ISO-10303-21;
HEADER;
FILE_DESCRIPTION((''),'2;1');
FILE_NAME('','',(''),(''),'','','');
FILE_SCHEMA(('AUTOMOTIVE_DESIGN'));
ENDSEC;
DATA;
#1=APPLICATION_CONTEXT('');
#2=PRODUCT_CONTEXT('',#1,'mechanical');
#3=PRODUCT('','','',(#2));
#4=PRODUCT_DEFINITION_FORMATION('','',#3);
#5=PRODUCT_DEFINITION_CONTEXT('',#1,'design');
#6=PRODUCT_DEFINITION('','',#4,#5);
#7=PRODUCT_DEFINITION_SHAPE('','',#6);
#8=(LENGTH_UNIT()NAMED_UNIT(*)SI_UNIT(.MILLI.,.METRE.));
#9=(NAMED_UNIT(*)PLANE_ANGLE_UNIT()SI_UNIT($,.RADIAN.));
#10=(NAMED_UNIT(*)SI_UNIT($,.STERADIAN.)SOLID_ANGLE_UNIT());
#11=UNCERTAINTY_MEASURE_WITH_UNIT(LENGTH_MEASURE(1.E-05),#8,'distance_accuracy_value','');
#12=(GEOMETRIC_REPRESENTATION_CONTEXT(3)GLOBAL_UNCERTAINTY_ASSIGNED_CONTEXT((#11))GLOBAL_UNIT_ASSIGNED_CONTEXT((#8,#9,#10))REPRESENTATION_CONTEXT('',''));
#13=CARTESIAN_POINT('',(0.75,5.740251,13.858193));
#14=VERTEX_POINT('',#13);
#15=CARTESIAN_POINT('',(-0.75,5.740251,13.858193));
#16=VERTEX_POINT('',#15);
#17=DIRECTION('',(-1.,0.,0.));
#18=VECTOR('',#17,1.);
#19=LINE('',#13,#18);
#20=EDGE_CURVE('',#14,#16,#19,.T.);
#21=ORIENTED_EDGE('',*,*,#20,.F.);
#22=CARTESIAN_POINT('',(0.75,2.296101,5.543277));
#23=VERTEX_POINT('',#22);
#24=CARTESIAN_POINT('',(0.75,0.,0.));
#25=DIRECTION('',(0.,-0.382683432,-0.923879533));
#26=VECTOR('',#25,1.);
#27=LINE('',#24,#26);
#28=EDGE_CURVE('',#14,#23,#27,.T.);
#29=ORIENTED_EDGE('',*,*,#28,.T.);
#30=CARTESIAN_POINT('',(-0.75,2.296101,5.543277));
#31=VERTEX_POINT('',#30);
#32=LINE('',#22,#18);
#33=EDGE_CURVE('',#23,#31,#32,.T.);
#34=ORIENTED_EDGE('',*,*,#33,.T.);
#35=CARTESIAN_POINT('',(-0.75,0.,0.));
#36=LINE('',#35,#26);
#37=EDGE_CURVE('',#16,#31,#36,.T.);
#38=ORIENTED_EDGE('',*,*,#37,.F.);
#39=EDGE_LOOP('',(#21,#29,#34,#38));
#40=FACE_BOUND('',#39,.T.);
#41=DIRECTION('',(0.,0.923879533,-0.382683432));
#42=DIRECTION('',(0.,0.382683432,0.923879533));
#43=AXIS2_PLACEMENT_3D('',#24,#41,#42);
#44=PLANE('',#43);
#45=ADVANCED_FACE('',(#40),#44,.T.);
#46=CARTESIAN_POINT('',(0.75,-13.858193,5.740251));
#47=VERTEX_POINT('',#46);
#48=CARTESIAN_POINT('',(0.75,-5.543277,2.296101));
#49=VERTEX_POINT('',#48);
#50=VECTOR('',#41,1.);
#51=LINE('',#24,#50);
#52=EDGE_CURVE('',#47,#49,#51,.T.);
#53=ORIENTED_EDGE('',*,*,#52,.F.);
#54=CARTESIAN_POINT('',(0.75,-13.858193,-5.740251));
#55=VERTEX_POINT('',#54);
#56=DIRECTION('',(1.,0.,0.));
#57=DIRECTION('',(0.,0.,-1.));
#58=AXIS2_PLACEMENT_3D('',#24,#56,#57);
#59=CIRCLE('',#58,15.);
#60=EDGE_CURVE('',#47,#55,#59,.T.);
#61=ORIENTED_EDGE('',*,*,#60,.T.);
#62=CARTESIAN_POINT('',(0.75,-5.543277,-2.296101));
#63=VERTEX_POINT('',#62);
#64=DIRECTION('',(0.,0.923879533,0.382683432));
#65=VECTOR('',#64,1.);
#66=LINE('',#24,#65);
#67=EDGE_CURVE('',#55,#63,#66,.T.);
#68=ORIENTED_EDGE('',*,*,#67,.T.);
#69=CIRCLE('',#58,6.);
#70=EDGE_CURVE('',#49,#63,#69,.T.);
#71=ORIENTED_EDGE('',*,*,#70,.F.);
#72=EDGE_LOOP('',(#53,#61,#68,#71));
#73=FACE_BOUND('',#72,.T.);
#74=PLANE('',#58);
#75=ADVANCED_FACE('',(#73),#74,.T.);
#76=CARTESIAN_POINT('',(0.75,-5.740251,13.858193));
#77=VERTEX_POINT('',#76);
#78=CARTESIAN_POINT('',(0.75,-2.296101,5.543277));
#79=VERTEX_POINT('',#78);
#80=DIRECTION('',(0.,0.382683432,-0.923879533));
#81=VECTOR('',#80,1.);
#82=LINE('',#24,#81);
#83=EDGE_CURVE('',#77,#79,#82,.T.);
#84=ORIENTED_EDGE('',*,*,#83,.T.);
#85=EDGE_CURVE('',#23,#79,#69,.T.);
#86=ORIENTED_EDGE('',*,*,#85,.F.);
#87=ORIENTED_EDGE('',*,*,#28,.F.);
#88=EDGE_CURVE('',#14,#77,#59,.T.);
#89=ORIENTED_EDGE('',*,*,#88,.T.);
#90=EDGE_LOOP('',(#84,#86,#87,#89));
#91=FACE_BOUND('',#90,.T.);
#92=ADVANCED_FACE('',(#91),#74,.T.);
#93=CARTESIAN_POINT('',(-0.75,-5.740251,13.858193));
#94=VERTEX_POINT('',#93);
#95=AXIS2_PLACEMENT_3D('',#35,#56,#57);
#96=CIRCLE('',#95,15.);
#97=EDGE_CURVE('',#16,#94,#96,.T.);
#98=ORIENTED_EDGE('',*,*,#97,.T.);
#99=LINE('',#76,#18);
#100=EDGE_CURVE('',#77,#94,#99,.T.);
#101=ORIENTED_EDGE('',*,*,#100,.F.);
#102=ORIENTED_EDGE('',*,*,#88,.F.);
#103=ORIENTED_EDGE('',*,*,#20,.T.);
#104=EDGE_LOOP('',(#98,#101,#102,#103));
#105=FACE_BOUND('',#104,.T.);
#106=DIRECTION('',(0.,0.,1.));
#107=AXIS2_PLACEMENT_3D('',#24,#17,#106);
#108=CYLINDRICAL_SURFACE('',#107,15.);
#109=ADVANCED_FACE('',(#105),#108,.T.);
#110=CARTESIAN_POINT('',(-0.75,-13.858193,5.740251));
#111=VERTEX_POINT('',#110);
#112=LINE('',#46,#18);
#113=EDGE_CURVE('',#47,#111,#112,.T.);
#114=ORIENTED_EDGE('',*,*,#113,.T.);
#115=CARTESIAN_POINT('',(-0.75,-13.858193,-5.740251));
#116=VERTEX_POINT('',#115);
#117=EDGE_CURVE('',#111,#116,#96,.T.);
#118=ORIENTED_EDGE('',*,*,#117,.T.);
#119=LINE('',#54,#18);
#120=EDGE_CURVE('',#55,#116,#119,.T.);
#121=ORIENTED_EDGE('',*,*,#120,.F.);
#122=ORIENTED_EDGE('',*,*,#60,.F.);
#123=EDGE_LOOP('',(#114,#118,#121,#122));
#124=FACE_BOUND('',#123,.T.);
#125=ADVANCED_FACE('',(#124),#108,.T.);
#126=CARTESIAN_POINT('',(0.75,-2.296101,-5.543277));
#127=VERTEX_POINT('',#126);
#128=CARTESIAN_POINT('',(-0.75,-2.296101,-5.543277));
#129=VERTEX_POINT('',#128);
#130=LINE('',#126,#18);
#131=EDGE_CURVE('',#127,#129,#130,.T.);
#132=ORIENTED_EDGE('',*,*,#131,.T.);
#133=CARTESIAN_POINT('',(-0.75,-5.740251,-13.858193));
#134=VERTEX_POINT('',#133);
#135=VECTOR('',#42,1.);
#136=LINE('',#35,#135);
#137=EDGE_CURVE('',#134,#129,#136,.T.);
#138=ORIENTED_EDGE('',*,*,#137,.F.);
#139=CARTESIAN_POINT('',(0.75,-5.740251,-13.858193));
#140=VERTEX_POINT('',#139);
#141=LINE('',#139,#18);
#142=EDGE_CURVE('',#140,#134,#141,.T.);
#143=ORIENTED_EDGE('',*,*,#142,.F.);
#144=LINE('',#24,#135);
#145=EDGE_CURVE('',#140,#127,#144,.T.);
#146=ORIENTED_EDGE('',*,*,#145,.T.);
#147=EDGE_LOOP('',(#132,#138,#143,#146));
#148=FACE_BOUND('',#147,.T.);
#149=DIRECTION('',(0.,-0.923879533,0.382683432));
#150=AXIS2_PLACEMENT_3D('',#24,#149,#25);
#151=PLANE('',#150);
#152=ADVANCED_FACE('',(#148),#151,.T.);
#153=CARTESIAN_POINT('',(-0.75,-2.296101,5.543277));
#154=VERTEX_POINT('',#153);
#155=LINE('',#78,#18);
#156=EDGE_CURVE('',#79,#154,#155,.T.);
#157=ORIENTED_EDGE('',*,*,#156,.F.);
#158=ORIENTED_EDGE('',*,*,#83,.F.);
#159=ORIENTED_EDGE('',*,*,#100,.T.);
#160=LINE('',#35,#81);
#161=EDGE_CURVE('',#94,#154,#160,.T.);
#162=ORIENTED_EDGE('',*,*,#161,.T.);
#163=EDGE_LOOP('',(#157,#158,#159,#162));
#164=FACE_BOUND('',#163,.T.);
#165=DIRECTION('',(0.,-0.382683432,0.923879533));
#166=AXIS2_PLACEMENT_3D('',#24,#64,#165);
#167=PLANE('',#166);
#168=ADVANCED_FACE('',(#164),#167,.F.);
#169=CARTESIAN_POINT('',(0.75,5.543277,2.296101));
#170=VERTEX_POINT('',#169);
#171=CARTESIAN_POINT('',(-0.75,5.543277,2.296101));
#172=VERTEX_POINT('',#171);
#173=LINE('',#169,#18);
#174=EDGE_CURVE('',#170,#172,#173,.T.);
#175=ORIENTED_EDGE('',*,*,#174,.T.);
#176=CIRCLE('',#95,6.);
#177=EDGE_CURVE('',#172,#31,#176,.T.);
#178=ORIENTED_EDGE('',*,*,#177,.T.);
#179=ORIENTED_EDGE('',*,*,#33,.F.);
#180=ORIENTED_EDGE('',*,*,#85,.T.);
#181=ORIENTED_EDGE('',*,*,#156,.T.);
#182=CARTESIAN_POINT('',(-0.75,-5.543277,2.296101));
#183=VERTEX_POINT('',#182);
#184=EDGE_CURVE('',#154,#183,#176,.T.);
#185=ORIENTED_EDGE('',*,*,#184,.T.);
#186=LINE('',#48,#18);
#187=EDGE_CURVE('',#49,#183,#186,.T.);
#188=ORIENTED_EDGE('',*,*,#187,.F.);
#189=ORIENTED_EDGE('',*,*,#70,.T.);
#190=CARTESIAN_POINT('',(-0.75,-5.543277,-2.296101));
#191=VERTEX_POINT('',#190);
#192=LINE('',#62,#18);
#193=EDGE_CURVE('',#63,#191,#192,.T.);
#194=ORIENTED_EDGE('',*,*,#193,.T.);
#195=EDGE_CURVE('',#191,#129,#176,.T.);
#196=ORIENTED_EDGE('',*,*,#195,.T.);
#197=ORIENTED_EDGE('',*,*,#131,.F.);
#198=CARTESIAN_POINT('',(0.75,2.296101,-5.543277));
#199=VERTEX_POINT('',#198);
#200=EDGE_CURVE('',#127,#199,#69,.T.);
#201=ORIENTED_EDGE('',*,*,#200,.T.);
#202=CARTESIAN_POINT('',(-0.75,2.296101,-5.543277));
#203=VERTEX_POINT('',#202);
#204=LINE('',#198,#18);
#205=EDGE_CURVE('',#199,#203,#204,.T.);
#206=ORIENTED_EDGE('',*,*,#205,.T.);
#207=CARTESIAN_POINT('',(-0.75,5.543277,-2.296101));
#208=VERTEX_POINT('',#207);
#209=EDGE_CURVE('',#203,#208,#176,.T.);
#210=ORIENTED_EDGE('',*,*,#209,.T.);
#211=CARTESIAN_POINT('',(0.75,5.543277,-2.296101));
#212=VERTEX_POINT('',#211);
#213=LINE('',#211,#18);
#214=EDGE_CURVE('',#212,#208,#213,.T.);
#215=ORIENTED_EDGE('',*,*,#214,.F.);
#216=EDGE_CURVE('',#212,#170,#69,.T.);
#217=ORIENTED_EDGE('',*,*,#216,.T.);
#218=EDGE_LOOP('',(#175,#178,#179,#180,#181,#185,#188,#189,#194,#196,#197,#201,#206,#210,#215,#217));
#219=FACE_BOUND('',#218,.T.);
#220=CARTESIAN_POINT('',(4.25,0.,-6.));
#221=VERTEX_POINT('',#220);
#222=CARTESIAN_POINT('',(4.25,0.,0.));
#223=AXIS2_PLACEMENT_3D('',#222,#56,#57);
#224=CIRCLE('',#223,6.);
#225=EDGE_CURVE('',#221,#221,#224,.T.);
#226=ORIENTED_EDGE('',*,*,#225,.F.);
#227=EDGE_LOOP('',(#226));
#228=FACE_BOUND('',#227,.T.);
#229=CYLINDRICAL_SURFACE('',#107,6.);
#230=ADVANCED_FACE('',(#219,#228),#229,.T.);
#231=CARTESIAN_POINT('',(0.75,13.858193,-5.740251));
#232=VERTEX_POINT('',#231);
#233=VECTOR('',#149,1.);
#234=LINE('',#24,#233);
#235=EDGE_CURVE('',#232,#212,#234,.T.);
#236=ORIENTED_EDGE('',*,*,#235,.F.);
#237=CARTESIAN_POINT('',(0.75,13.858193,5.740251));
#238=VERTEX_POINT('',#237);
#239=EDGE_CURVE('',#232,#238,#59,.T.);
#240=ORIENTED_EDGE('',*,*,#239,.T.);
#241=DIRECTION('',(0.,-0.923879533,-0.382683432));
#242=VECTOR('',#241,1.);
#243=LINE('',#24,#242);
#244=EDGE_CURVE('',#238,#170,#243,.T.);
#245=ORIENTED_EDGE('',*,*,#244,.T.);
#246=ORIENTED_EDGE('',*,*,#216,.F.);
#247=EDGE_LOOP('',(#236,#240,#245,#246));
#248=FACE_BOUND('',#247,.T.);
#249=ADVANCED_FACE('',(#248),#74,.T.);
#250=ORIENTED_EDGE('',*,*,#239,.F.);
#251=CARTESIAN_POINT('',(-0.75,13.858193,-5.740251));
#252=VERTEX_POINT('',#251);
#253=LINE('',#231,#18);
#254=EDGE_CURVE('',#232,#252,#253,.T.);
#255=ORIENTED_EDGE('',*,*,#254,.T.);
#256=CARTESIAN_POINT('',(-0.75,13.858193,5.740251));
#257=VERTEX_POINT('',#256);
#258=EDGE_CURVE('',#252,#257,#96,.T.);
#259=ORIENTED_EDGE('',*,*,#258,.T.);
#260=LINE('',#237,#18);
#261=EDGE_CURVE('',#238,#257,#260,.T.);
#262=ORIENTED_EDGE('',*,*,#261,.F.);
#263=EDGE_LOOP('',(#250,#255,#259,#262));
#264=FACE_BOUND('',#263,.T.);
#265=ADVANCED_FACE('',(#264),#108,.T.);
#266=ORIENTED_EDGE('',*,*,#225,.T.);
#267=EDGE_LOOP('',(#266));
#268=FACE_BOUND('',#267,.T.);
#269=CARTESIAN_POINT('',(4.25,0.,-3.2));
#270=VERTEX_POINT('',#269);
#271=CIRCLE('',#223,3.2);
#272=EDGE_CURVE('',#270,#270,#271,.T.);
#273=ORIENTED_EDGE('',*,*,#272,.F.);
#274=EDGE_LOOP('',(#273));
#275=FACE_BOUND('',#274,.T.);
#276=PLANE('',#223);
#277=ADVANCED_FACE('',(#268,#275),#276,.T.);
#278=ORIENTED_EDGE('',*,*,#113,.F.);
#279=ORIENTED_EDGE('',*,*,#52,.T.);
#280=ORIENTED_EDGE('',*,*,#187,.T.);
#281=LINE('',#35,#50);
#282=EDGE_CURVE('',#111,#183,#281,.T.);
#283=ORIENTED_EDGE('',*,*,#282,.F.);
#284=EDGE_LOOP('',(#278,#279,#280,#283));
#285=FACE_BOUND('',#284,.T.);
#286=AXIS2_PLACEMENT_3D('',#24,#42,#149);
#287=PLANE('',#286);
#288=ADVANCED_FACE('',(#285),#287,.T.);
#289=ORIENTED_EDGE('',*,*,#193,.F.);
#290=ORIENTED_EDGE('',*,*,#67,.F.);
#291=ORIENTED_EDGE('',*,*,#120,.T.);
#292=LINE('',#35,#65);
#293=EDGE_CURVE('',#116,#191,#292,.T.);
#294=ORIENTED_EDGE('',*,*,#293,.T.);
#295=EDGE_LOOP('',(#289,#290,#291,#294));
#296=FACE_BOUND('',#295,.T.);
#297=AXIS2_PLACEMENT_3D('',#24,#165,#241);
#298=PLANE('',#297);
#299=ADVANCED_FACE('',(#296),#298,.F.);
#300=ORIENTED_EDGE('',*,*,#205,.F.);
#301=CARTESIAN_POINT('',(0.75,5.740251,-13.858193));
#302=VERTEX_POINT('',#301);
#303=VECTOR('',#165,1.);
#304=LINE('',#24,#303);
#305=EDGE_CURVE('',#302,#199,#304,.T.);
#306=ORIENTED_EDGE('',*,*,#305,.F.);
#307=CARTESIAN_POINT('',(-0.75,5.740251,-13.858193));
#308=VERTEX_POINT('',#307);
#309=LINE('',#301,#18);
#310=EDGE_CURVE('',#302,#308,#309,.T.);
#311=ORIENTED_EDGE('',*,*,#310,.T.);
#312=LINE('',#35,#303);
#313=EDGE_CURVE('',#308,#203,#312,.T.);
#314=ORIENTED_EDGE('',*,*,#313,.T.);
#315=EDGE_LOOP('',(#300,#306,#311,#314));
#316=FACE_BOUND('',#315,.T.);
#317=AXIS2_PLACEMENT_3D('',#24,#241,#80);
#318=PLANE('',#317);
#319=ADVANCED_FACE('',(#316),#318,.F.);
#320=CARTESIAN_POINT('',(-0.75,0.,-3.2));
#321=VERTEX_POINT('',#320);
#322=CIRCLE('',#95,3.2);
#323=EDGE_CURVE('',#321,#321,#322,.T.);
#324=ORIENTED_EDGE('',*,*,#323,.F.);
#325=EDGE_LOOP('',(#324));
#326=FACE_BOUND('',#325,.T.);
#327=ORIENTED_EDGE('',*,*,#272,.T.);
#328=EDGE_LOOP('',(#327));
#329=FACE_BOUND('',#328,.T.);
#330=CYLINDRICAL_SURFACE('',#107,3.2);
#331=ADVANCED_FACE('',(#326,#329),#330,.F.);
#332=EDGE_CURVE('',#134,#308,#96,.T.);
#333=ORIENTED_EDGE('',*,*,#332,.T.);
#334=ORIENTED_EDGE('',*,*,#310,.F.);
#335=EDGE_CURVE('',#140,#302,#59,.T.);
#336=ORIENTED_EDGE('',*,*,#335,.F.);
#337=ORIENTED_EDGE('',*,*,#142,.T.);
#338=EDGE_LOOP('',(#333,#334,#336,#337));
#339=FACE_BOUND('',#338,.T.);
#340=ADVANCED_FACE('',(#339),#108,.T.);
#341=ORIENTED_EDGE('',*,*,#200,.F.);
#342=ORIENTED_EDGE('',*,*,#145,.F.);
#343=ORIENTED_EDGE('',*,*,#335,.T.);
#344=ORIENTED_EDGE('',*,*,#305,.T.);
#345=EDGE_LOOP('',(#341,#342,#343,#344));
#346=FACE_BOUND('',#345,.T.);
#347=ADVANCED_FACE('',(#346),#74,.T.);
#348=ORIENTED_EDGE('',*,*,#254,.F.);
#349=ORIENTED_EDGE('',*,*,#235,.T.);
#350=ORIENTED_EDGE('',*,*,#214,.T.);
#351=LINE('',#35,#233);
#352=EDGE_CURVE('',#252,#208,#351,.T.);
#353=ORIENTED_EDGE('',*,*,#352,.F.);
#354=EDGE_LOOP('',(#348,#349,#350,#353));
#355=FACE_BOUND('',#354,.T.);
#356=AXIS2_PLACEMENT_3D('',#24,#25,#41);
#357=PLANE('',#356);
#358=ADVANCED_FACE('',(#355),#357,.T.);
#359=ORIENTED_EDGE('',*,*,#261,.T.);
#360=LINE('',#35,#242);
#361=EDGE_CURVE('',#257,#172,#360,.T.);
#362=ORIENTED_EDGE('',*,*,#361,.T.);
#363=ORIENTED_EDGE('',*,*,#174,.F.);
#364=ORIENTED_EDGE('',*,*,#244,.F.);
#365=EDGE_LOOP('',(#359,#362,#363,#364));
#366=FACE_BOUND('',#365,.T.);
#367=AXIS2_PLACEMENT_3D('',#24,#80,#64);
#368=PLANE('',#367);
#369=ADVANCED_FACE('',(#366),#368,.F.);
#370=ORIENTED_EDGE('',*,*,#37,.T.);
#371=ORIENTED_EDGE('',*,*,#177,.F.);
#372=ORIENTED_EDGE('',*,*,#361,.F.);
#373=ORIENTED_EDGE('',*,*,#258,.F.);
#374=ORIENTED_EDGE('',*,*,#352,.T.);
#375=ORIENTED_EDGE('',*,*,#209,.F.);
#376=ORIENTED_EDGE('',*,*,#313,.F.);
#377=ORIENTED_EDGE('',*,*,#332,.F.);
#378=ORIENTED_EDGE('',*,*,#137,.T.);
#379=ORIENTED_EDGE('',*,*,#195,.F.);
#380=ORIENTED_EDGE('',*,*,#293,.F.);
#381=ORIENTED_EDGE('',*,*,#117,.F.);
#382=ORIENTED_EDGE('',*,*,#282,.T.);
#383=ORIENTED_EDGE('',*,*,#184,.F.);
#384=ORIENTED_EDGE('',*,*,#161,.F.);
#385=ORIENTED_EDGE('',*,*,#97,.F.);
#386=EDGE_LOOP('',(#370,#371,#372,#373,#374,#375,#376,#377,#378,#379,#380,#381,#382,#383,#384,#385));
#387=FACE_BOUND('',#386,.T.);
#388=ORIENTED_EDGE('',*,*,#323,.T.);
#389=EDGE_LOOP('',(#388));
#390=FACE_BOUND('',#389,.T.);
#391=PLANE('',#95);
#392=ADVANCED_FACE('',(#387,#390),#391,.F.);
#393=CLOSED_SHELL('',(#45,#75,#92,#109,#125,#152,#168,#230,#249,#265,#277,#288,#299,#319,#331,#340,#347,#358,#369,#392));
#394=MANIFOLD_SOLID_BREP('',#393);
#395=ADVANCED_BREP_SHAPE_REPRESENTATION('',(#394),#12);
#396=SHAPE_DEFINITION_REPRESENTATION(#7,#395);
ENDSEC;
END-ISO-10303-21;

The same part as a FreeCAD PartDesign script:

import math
import FreeCAD as App
import Part
import Sketcher
Q = App.Units.Quantity

doc = App.newDocument("Part")
body = doc.addObject("PartDesign::Body", "Body")

sketch1 = doc.addObject("Sketcher::SketchObject", "Sketch")
body.addObject(sketch1)
sketch1.AttachmentSupport = (doc.YZ_Plane, [""])
sketch1.MapMode = "FlatFace"
sketch1.addGeometry(Part.LineSegment(App.Vector(13.858193, 5.740251, 0), App.Vector(5.543277, 2.296101, 0)), False)
sketch1.addGeometry(Part.ArcOfCircle(Part.Circle(App.Vector(0, 0, 0), App.Vector(0, 0, 1), 6), math.radians(22.5), math.radians(67.5)), False)
sketch1.addGeometry(Part.LineSegment(App.Vector(2.296101, 5.543277, 0), App.Vector(5.740251, 13.858193, 0)), False)
sketch1.addGeometry(Part.ArcOfCircle(Part.Circle(App.Vector(0, 0, 0), App.Vector(0, 0, 1), 15), math.radians(67.5), math.radians(112.5)), False)
sketch1.addGeometry(Part.LineSegment(App.Vector(-5.740251, 13.858193, 0), App.Vector(-2.296101, 5.543277, 0)), False)
sketch1.addGeometry(Part.ArcOfCircle(Part.Circle(App.Vector(0, 0, 0), App.Vector(0, 0, 1), 6), math.radians(112.5), math.radians(157.5)), False)
sketch1.addGeometry(Part.LineSegment(App.Vector(-5.543277, 2.296101, 0), App.Vector(-13.858193, 5.740251, 0)), False)
sketch1.addGeometry(Part.ArcOfCircle(Part.Circle(App.Vector(0, 0, 0), App.Vector(0, 0, 1), 15), math.radians(157.5), math.radians(202.5)), False)
sketch1.addGeometry(Part.LineSegment(App.Vector(-13.858193, -5.740251, 0), App.Vector(-5.543277, -2.296101, 0)), False)
sketch1.addGeometry(Part.ArcOfCircle(Part.Circle(App.Vector(0, 0, 0), App.Vector(0, 0, 1), 6), math.radians(-157.5), math.radians(-112.5)), False)
sketch1.addGeometry(Part.LineSegment(App.Vector(-2.296101, -5.543277, 0), App.Vector(-5.740251, -13.858193, 0)), False)
sketch1.addGeometry(Part.ArcOfCircle(Part.Circle(App.Vector(0, 0, 0), App.Vector(0, 0, 1), 15), math.radians(-112.5), math.radians(-67.5)), False)
sketch1.addGeometry(Part.LineSegment(App.Vector(5.740251, -13.858193, 0), App.Vector(2.296101, -5.543277, 0)), False)
sketch1.addGeometry(Part.ArcOfCircle(Part.Circle(App.Vector(0, 0, 0), App.Vector(0, 0, 1), 6), math.radians(-67.5), math.radians(-22.5)), False)
sketch1.addGeometry(Part.LineSegment(App.Vector(5.543277, -2.296101, 0), App.Vector(13.858193, -5.740251, 0)), False)
sketch1.addGeometry(Part.ArcOfCircle(Part.Circle(App.Vector(0, 0, 0), App.Vector(0, 0, 1), 15), math.radians(-22.5), math.radians(22.5)), False)
sketch1.addGeometry(Part.Circle(App.Vector(0, 0, 0), App.Vector(0, 0, 1), 3.2), False)
sketch1.addConstraint(Sketcher.Constraint("Coincident", 0, 2, 1, 1))
sketch1.addConstraint(Sketcher.Constraint("Coincident", 1, 2, 2, 1))
sketch1.addConstraint(Sketcher.Constraint("Coincident", 2, 2, 3, 1))
sketch1.addConstraint(Sketcher.Constraint("Coincident", 3, 2, 4, 1))
sketch1.addConstraint(Sketcher.Constraint("Coincident", 4, 2, 5, 1))
sketch1.addConstraint(Sketcher.Constraint("Coincident", 5, 2, 6, 1))
sketch1.addConstraint(Sketcher.Constraint("Coincident", 6, 2, 7, 1))
sketch1.addConstraint(Sketcher.Constraint("Coincident", 7, 2, 8, 1))
sketch1.addConstraint(Sketcher.Constraint("Coincident", 8, 2, 9, 1))
sketch1.addConstraint(Sketcher.Constraint("Coincident", 9, 2, 10, 1))
sketch1.addConstraint(Sketcher.Constraint("Coincident", 10, 2, 11, 1))
sketch1.addConstraint(Sketcher.Constraint("Coincident", 11, 2, 12, 1))
sketch1.addConstraint(Sketcher.Constraint("Coincident", 12, 2, 13, 1))
sketch1.addConstraint(Sketcher.Constraint("Coincident", 13, 2, 14, 1))
sketch1.addConstraint(Sketcher.Constraint("Coincident", 14, 2, 15, 1))
sketch1.addConstraint(Sketcher.Constraint("Coincident", 15, 2, 0, 1))
sketch1.addConstraint(Sketcher.Constraint("Coincident", 1, 3, -1, 1))
sketch1.addConstraint(Sketcher.Constraint("Coincident", 3, 3, -1, 1))
sketch1.addConstraint(Sketcher.Constraint("Coincident", 5, 3, -1, 1))
sketch1.addConstraint(Sketcher.Constraint("Coincident", 7, 3, -1, 1))
sketch1.addConstraint(Sketcher.Constraint("Coincident", 9, 3, -1, 1))
sketch1.addConstraint(Sketcher.Constraint("Coincident", 11, 3, -1, 1))
sketch1.addConstraint(Sketcher.Constraint("Coincident", 13, 3, -1, 1))
sketch1.addConstraint(Sketcher.Constraint("Coincident", 15, 3, -1, 1))
sketch1.addConstraint(Sketcher.Constraint("Coincident", 16, 3, -1, 1))
sketch1.addConstraint(Sketcher.Constraint("Equal", 1, 5))
sketch1.addConstraint(Sketcher.Constraint("Equal", 3, 7))
sketch1.addConstraint(Sketcher.Constraint("Equal", 5, 9))
sketch1.addConstraint(Sketcher.Constraint("Equal", 7, 11))
sketch1.addConstraint(Sketcher.Constraint("Equal", 9, 13))
sketch1.addConstraint(Sketcher.Constraint("Equal", 11, 15))
sketch1.addConstraint(Sketcher.Constraint("Perpendicular", 0, 4))
sketch1.addConstraint(Sketcher.Constraint("Perpendicular", 2, 6))
sketch1.addConstraint(Sketcher.Constraint("Perpendicular", 4, 8))
sketch1.addConstraint(Sketcher.Constraint("Perpendicular", 6, 10))
sketch1.addConstraint(Sketcher.Constraint("Perpendicular", 8, 12))
sketch1.addConstraint(Sketcher.Constraint("Perpendicular", 10, 14))
sketch1.addConstraint(Sketcher.Constraint("Horizontal", 2, 2, 3, 2))
sketch1.addConstraint(Sketcher.Constraint("Horizontal", 1, 2, 4, 2))
sketch1.addConstraint(Sketcher.Constraint("Horizontal", 0, 2, 5, 2))
sketch1.addConstraint(Sketcher.Constraint("Horizontal", 10, 2, 11, 2))
sketch1.addConstraint(Sketcher.Constraint("Horizontal", 8, 2, 13, 2))
sketch1.addConstraint(Sketcher.Constraint("Vertical", 6, 2, 7, 2))
sketch1.addConstraint(Sketcher.Constraint("Vertical", 4, 2, 9, 2))
sketch1.addConstraint(Sketcher.Constraint("Radius", 1, 6.0))
sketch1.addConstraint(Sketcher.Constraint("Radius", 3, 15.0))
sketch1.addConstraint(Sketcher.Constraint("Diameter", 16, 6.4))
sketch1.addConstraint(Sketcher.Constraint("Angle", 0, Q("-157.5 deg")))
sketch1.addConstraint(Sketcher.Constraint("DistanceY", -1, 1, 0, 2, 2.296101))
sketch1.addConstraint(Sketcher.Constraint("DistanceX", -1, 1, 1, 2, 2.296101))
pad1 = doc.addObject("PartDesign::Pad", "Pad")
body.addObject(pad1)
pad1.Profile = sketch1
pad1.Length = 1.5
pad1.Midplane = True

sketch2 = doc.addObject("Sketcher::SketchObject", "Sketch001")
body.addObject(sketch2)
sketch2.AttachmentSupport = (doc.YZ_Plane, [""])
sketch2.MapMode = "FlatFace"
sketch2.AttachmentOffset = App.Placement(App.Vector(0, 0, 4.25), App.Rotation())
sketch2.addGeometry(Part.Circle(App.Vector(0, 0, 0), App.Vector(0, 0, 1), 6), False)
sketch2.addGeometry(Part.Circle(App.Vector(0, 0, 0), App.Vector(0, 0, 1), 3.2), False)
sketch2.addConstraint(Sketcher.Constraint("Coincident", 0, 3, -1, 1))
sketch2.addConstraint(Sketcher.Constraint("Coincident", 1, 3, -1, 1))
sketch2.addConstraint(Sketcher.Constraint("Diameter", 0, 12.0))
sketch2.addConstraint(Sketcher.Constraint("Diameter", 1, 6.4))
pad2 = doc.addObject("PartDesign::Pad", "Pad001")
body.addObject(pad2)
pad2.Profile = sketch2
pad2.Length = 3.5
pad2.Reversed = True

doc.recompute()
